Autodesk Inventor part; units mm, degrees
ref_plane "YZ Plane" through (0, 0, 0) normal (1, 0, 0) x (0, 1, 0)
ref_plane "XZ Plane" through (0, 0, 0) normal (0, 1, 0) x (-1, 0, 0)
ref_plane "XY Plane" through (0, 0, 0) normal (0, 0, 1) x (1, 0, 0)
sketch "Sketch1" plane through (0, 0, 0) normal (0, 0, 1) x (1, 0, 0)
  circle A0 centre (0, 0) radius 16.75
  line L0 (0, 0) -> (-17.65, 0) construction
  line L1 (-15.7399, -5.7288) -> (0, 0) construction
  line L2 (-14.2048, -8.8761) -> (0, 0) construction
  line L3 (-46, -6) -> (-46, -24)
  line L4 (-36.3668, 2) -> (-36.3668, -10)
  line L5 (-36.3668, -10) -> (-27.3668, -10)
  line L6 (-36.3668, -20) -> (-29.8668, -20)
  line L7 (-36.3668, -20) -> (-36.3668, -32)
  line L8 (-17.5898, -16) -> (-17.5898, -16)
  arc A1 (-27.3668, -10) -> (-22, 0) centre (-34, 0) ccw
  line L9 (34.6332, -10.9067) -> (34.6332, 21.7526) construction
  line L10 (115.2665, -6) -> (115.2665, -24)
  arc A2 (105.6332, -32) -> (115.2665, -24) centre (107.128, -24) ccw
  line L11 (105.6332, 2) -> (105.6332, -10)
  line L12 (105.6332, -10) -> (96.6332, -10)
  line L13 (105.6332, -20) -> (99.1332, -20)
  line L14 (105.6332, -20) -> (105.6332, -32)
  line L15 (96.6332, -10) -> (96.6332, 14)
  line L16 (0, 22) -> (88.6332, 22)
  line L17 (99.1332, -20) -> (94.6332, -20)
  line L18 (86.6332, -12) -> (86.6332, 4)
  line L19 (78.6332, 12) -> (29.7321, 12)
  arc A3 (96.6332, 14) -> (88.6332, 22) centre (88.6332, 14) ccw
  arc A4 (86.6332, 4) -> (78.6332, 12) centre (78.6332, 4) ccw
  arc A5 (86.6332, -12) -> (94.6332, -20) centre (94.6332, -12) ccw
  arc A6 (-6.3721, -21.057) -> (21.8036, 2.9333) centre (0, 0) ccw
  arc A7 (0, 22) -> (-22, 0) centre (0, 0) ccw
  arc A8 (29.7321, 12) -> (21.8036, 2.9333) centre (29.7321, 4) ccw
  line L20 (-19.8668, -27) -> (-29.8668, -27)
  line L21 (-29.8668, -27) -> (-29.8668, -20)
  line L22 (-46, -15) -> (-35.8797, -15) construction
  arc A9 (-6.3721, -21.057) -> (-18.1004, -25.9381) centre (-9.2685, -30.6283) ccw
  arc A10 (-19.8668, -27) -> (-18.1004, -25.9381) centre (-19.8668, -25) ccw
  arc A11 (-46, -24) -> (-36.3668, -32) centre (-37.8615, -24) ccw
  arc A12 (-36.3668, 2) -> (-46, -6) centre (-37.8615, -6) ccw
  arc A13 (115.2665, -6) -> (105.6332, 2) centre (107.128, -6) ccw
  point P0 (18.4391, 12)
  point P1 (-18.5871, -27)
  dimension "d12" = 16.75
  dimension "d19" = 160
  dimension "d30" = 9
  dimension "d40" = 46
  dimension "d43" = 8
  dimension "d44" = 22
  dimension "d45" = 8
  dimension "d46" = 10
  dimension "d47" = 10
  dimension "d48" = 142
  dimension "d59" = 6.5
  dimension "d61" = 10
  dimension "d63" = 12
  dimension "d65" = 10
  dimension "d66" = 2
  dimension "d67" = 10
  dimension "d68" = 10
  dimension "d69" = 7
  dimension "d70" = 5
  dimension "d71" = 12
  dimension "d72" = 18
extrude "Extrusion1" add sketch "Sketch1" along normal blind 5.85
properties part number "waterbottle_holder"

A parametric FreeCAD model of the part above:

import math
import FreeCAD as App
import Part
import Sketcher

doc = App.newDocument("Part")
params = doc.addObject("Spreadsheet::Sheet", "Params")
for row, (alias, value) in enumerate([
    ("sketch1_radius", "2 mm"),
    ("sketch1_radius2", "10 mm"),
    ("sketch1_radius3", "22 mm"),
    ("sketch1_radius4", "8 mm"),
    ("sketch1_radius5", "12 mm"),
    ("pad1_length", "5.85 mm"),
], start=1):
    params.set(f"A{row}", alias)
    params.set(f"B{row}", "=" + value)
    params.setAlias(f"B{row}", alias)

body = doc.addObject("PartDesign::Body", "Body")

sketch1 = body.newObject("Sketcher::SketchObject", "Sketch")
sketch1.AttachmentSupport = (doc.getObject("XY_Plane"), [""])
sketch1.MapMode = "FlatFace"
sketch1.addGeometry([
    Part.ArcOfCircle(Part.Circle(App.Vector(-37.9, -6, 0), App.Vector(0, 0, 1), 8.1), math.radians(79), math.radians(180)),
    Part.LineSegment(App.Vector(-46, -6, 0), App.Vector(-46, -24, 0)),
    Part.ArcOfCircle(Part.Circle(App.Vector(-37.9, -24, 0), App.Vector(0, 0, 1), 8.1), math.radians(180), math.radians(281)),
    Part.LineSegment(App.Vector(-36.4, -32, 0), App.Vector(-36.4, -20, 0)),
    Part.LineSegment(App.Vector(-36.4, -20, 0), App.Vector(-29.9, -20, 0)),
    Part.LineSegment(App.Vector(-29.9, -20, 0), App.Vector(-29.9, -27, 0)),
    Part.LineSegment(App.Vector(-29.9, -27, 0), App.Vector(-19.9, -27, 0)),
    Part.ArcOfCircle(Part.Circle(App.Vector(-19.9, -25, 0), App.Vector(0, 0, 1), 2), math.radians(-90), math.radians(-28)),
    Part.ArcOfCircle(Part.Circle(App.Vector(-9.3, -30.6, 0), App.Vector(0, 0, 1), 10), math.radians(73), math.radians(152)),
    Part.ArcOfCircle(Part.Circle(App.Vector(0, 0, 0), App.Vector(0, 0, 1), 22), math.radians(-107), math.radians(8)),
    Part.ArcOfCircle(Part.Circle(App.Vector(29.7, 4, 0), App.Vector(0, 0, 1), 8), math.radians(90), math.radians(188)),
    Part.LineSegment(App.Vector(29.7, 12, 0), App.Vector(78.6, 12, 0)),
    Part.ArcOfCircle(Part.Circle(App.Vector(78.6, 4, 0), App.Vector(0, 0, 1), 8), math.radians(0), math.radians(90)),
    Part.LineSegment(App.Vector(86.6, 4, 0), App.Vector(86.6, -12, 0)),
    Part.ArcOfCircle(Part.Circle(App.Vector(94.6, -12, 0), App.Vector(0, 0, 1), 8), math.radians(180), math.radians(270)),
    Part.LineSegment(App.Vector(94.6, -20, 0), App.Vector(105.6, -20, 0)),
    Part.LineSegment(App.Vector(105.6, -20, 0), App.Vector(105.6, -32, 0)),
    Part.ArcOfCircle(Part.Circle(App.Vector(107.1, -24, 0), App.Vector(0, 0, 1), 8.1), math.radians(-101), math.radians(0)),
    Part.LineSegment(App.Vector(115.3, -24, 0), App.Vector(115.3, -6, 0)),
    Part.ArcOfCircle(Part.Circle(App.Vector(107.1, -6, 0), App.Vector(0, 0, 1), 8.1), math.radians(0), math.radians(101)),
    Part.LineSegment(App.Vector(105.6, 2, 0), App.Vector(105.6, -10, 0)),
    Part.LineSegment(App.Vector(105.6, -10, 0), App.Vector(96.6, -10, 0)),
    Part.LineSegment(App.Vector(96.6, -10, 0), App.Vector(96.6, 14, 0)),
    Part.ArcOfCircle(Part.Circle(App.Vector(88.6, 14, 0), App.Vector(0, 0, 1), 8), math.radians(0), math.radians(90)),
    Part.LineSegment(App.Vector(88.6, 22, 0), App.Vector(0, 22, 0)),
    Part.ArcOfCircle(Part.Circle(App.Vector(0, 0, 0), App.Vector(0, 0, 1), 22), math.radians(90), math.radians(180)),
    Part.ArcOfCircle(Part.Circle(App.Vector(-34, 0, 0), App.Vector(0, 0, 1), 12), math.radians(-56), math.radians(0)),
    Part.LineSegment(App.Vector(-27.4, -10, 0), App.Vector(-36.4, -10, 0)),
    Part.LineSegment(App.Vector(-36.4, -10, 0), App.Vector(-36.4, 2, 0)),
    Part.Circle(App.Vector(0, 0, 0), App.Vector(0, 0, 1), 16.8),
], False)
sketch1.addConstraint([
    Sketcher.Constraint("Tangent", 0, 2, 1, 1),
    Sketcher.Constraint("Tangent", 1, 2, 2, 1),
    Sketcher.Constraint("Coincident", 2, 2, 3, 1),
    Sketcher.Constraint("Coincident", 3, 2, 4, 1),
    Sketcher.Constraint("Coincident", 4, 2, 5, 1),
    Sketcher.Constraint("Coincident", 5, 2, 6, 1),
    Sketcher.Constraint("Tangent", 6, 2, 7, 1),
    Sketcher.Constraint("Tangent", 7, 2, 8, 2),
    Sketcher.Constraint("Tangent", 8, 1, 9, 1),
    Sketcher.Constraint("Tangent", 9, 2, 10, 2),
    Sketcher.Constraint("Tangent", 10, 1, 11, 1),
    Sketcher.Constraint("Tangent", 11, 2, 12, 2),
    Sketcher.Constraint("Tangent", 12, 1, 13, 1),
    Sketcher.Constraint("Tangent", 13, 2, 14, 1),
    Sketcher.Constraint("Tangent", 14, 2, 15, 1),
    Sketcher.Constraint("Coincident", 15, 2, 16, 1),
    Sketcher.Constraint("Coincident", 16, 2, 17, 1),
    Sketcher.Constraint("Tangent", 17, 2, 18, 1),
    Sketcher.Constraint("Tangent", 18, 2, 19, 1),
    Sketcher.Constraint("Coincident", 19, 2, 20, 1),
    Sketcher.Constraint("Coincident", 20, 2, 21, 1),
    Sketcher.Constraint("Coincident", 21, 2, 22, 1),
    Sketcher.Constraint("Tangent", 22, 2, 23, 1),
    Sketcher.Constraint("Tangent", 23, 2, 24, 1),
    Sketcher.Constraint("Tangent", 24, 2, 25, 1),
    Sketcher.Constraint("Tangent", 25, 2, 26, 2),
    Sketcher.Constraint("Coincident", 26, 1, 27, 1),
    Sketcher.Constraint("Coincident", 27, 2, 28, 1),
    Sketcher.Constraint("Coincident", 28, 2, 0, 1),
    Sketcher.Constraint("Vertical", 1),
    Sketcher.Constraint("Vertical", 3),
    Sketcher.Constraint("Horizontal", 4),
    Sketcher.Constraint("Vertical", 5),
    Sketcher.Constraint("Horizontal", 6),
    Sketcher.Constraint("Horizontal", 11),
    Sketcher.Constraint("Vertical", 13),
    Sketcher.Constraint("Horizontal", 15),
    Sketcher.Constraint("Vertical", 16),
    Sketcher.Constraint("Vertical", 18),
    Sketcher.Constraint("Vertical", 20),
    Sketcher.Constraint("Horizontal", 21),
    Sketcher.Constraint("Vertical", 22),
    Sketcher.Constraint("Horizontal", 24),
    Sketcher.Constraint("Horizontal", 27),
    Sketcher.Constraint("Vertical", 28),
    Sketcher.Constraint("Coincident", 9, 3, -1, 1),
    Sketcher.Constraint("Coincident", 25, 3, -1, 1),
    Sketcher.Constraint("Coincident", 29, 3, -1, 1),
    Sketcher.Constraint("Equal", 0, 2),
    Sketcher.Constraint("Equal", 10, 12),
    Sketcher.Constraint("Equal", 12, 14),
    Sketcher.Constraint("Equal", 2, 17),
    Sketcher.Constraint("Equal", 17, 19),
    Sketcher.Constraint("Equal", 14, 23),
    Sketcher.Constraint("Equal", 9, 25),
    Sketcher.Constraint("PointOnObject", 26, 3, -1),
    Sketcher.Constraint("Horizontal", 2, 3, 17, 3),
    Sketcher.Constraint("Horizontal", 0, 3, 19, 3),
    Sketcher.Constraint("Horizontal", 4, 2, 14, 2),
    Sketcher.Constraint("Horizontal", 2, 2, 16, 2),
    Sketcher.Constraint("Horizontal", 21, 2, 26, 1),
    Sketcher.Constraint("Horizontal", 19, 2, 28, 2),
    Sketcher.Constraint("Vertical", 16, 2, 19, 2),
    Sketcher.Constraint("Equal", 21, 27),
    Sketcher.Constraint("Equal", 16, 20),
    Sketcher.Constraint("Radius", 7, 2.0),
    Sketcher.Constraint("Radius", 8, 10.0),
    Sketcher.Constraint("Radius", 9, 22.0),
    Sketcher.Constraint("Radius", 10, 8.0),
    Sketcher.Constraint("Radius", 26, 12.0),
    Sketcher.Constraint("Diameter", 29, 33.5),
    Sketcher.Constraint("DistanceX", 6, 1, 6, 2, 10.0),
    Sketcher.Constraint("DistanceX", 21, 2, 21, 1, 9.0),
    Sketcher.Constraint("DistanceY", 1, 2, 1, 1, 18.0),
    Sketcher.Constraint("DistanceY", 3, 1, 3, 2, 12.0),
    Sketcher.Constraint("DistanceY", 5, 2, 5, 1, 7.0),
    Sketcher.Constraint("DistanceX", 4, 1, 4, 2, 6.5),
    Sketcher.Constraint("DistanceY", 14, 3, -1, 1, 12.0),
    Sketcher.Constraint("DistanceX", 0, 2, -1, 1, 46.0),
    Sketcher.Constraint("DistanceY", -1, 1, 10, 1, 12.0),
    Sketcher.Constraint("DistanceY", -1, 1, 19, 2, 2.0),
    Sketcher.Constraint("DistanceX", 12, 3, 23, 3, 10.0),
    Sketcher.Constraint("DistanceX", 7, 3, 12, 3, 98.5),
])
sketch1.setExpression("Constraints[65]", "Params.sketch1_radius")
sketch1.setExpression("Constraints[66]", "Params.sketch1_radius2")
sketch1.setExpression("Constraints[67]", "Params.sketch1_radius3")
sketch1.setExpression("Constraints[68]", "Params.sketch1_radius4")
sketch1.setExpression("Constraints[69]", "Params.sketch1_radius5")
pad1 = body.newObject("PartDesign::Pad", "Pad")
pad1.Profile = sketch1
pad1.setExpression("Length", "Params.pad1_length")

doc.recompute()
